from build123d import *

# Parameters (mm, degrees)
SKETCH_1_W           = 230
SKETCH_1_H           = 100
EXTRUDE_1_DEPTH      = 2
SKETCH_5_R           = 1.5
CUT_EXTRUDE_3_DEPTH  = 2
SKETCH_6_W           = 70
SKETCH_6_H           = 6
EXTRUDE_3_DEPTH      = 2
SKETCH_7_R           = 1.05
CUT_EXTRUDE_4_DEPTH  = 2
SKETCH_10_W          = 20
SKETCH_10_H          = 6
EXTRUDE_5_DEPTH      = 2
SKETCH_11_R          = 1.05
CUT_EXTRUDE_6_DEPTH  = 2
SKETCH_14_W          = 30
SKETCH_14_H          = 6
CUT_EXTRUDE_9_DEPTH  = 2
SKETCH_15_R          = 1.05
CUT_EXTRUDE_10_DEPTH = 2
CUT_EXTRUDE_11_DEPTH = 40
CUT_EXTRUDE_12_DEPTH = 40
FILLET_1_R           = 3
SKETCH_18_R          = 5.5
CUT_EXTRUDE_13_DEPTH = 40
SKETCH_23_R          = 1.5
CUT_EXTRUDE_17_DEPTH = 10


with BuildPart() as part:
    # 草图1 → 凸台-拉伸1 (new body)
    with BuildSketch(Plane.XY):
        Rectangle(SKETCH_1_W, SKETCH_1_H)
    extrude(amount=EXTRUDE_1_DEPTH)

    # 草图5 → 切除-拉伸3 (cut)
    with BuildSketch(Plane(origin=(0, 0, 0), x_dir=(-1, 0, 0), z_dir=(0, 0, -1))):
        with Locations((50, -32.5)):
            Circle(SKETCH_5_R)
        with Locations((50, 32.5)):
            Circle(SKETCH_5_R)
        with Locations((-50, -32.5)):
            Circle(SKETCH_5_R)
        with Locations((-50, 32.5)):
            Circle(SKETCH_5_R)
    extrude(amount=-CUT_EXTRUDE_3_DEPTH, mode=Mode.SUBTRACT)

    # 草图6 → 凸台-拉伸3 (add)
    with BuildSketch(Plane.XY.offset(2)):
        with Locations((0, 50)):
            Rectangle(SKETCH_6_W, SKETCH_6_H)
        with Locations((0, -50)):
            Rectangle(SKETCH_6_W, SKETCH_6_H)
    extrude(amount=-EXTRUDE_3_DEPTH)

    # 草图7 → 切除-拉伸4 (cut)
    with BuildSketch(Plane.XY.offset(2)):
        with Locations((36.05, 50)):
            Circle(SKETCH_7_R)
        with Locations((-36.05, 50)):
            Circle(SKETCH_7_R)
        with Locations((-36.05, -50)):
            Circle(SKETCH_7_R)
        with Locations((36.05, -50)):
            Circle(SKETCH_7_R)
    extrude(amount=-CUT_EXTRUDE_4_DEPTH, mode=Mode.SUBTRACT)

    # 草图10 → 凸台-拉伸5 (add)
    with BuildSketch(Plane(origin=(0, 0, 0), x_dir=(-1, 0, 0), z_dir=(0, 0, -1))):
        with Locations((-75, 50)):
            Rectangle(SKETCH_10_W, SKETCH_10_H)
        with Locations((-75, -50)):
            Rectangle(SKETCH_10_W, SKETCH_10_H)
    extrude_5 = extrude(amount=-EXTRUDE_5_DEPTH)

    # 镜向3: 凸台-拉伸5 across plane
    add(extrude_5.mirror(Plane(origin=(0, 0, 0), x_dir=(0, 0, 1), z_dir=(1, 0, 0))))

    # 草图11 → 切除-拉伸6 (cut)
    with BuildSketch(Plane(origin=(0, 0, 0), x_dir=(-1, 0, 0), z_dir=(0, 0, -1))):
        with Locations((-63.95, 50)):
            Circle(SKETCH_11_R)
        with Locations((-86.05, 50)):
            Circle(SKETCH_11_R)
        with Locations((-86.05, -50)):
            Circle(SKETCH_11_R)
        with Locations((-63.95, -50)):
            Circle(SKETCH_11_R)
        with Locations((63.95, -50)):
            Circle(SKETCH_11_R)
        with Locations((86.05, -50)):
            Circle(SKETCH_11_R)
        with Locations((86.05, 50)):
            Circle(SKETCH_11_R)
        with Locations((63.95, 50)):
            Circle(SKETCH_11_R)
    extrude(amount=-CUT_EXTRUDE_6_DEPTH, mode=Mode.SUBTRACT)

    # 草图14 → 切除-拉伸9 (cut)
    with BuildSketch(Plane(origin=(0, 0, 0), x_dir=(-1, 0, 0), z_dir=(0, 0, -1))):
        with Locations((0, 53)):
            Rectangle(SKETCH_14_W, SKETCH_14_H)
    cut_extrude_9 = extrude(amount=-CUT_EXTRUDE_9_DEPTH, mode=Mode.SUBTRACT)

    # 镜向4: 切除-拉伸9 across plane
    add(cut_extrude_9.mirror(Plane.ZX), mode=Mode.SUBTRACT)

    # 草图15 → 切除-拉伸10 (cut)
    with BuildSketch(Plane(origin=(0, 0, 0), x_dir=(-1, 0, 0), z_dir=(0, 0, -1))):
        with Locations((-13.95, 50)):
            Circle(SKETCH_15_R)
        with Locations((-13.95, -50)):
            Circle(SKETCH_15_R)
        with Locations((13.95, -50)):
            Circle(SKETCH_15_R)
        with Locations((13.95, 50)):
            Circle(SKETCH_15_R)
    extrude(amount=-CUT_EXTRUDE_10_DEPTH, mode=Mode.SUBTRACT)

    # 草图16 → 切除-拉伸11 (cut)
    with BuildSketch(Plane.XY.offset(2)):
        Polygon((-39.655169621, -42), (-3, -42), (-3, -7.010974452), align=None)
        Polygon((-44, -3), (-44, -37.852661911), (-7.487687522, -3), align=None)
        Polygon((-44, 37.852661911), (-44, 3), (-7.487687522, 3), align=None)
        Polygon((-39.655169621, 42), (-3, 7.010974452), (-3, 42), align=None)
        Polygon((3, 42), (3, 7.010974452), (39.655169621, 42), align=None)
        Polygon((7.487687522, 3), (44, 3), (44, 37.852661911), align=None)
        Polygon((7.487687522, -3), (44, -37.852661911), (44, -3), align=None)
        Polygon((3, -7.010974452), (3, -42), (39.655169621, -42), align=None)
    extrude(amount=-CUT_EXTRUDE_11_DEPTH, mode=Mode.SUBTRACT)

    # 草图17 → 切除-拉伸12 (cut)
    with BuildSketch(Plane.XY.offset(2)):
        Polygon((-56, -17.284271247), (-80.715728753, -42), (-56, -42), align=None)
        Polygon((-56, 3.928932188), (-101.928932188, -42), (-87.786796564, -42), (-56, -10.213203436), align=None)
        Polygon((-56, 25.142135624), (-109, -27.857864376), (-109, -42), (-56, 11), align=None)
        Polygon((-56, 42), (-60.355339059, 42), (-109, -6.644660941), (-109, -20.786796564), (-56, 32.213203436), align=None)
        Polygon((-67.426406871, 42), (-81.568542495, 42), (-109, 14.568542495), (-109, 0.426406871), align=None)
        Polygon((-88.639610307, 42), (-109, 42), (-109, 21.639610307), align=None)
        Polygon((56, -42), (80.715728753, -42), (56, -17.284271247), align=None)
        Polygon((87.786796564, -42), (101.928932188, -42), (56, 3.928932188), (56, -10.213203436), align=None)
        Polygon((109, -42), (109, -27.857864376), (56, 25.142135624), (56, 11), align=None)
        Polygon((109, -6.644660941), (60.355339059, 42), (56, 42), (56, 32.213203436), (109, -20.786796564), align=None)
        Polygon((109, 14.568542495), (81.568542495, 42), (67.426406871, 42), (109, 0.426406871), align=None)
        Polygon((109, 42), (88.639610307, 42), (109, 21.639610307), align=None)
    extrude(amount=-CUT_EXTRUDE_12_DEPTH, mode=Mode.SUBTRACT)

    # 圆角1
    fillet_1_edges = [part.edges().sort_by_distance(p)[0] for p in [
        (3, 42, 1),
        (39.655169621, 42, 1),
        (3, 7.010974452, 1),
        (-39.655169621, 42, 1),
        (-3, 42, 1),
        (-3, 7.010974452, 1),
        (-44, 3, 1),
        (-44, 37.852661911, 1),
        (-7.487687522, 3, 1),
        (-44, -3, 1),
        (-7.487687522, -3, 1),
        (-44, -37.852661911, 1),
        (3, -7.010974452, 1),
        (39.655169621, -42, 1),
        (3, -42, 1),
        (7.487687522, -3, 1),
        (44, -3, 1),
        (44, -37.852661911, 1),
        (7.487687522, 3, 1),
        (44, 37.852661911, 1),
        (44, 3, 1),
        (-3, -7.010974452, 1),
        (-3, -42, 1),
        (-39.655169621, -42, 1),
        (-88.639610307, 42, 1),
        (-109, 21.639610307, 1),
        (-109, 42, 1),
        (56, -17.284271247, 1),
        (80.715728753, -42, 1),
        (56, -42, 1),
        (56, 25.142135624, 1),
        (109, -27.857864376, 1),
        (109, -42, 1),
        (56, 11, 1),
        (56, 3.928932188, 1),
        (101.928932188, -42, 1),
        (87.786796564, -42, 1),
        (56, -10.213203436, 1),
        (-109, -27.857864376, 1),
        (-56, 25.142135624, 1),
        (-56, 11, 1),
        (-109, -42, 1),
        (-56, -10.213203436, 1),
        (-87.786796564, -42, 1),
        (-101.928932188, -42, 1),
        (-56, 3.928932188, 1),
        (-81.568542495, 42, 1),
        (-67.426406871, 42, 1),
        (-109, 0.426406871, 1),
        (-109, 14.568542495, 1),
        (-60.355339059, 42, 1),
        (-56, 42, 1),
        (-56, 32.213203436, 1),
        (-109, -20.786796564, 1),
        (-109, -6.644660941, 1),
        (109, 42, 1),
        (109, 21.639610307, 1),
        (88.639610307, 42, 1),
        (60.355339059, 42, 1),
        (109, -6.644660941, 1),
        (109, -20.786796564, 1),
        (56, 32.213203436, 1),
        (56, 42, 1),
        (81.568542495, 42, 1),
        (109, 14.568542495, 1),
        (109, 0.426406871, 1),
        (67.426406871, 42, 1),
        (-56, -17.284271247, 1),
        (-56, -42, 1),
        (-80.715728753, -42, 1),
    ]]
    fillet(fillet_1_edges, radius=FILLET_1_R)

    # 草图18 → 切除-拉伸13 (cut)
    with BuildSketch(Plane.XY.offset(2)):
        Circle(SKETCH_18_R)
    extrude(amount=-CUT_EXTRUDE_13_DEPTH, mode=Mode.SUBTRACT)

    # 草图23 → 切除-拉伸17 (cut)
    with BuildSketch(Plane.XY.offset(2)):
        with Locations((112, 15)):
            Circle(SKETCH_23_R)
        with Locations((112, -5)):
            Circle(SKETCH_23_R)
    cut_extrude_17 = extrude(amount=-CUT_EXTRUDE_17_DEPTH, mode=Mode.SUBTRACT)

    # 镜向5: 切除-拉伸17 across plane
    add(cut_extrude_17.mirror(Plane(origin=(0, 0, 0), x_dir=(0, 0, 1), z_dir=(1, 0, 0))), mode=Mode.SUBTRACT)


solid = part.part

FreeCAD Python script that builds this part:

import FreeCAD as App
import Part
import Sketcher

V = App.Vector


def edges_at(feature, points):
    """Names of the edges that pass closest to the given points."""
    edges = feature.Shape.Edges
    near = lambda p: min(range(len(edges)), key=lambda i: edges[i].distToShape(Part.Vertex(*p))[0])
    return sorted({f"Edge{near(p) + 1}" for p in points})


def add_polygon(sketch, points):
    """Adds a closed chain of lines whose ends are joined by coincident constraints."""
    first, n = sketch.GeometryCount, len(points)
    for a, b in zip(points, points[1:] + points[:1]):
        sketch.addGeometry(Part.LineSegment(App.Vector(*a, 0), App.Vector(*b, 0)), False)
    for i in range(n):
        sketch.addConstraint(Sketcher.Constraint("Coincident", first + i, 2, first + (i + 1) % n, 1))

doc = App.newDocument("Part")
body = doc.addObject("PartDesign::Body", "Body")

# Sketch on XY plane
sketch1 = body.newObject("Sketcher::SketchObject", "Sketch")
sketch1.AttachmentSupport = (doc.getObject("XY_Plane"), [""])
sketch1.MapMode = "FlatFace"
add_polygon(sketch1, [(-115, 50), (-115, -50), (115, -50), (115, 50)])  # lines 0-3
sketch1.addConstraint([
    Sketcher.Constraint("Vertical", 0),
    Sketcher.Constraint("Horizontal", 1),
    Sketcher.Constraint("Vertical", 2),
    Sketcher.Constraint("Horizontal", 3),
    Sketcher.Constraint("Symmetric", 0, 2, 2, 2, -1, 1),
    Sketcher.Constraint("DistanceX", 1, 1, 1, 2, 230.0),
    Sketcher.Constraint("DistanceY", 0, 2, 0, 1, 100.0),
])
pad1 = body.newObject("PartDesign::Pad", "Pad")
pad1.Profile = sketch1
pad1.Length = 2

# Sketch on XY plane
sketch2 = body.newObject("Sketcher::SketchObject", "Sketch001")
sketch2.AttachmentSupport = (doc.getObject("XY_Plane"), [""])
sketch2.MapMode = "FlatFace"
sketch2.addGeometry([
    Part.Circle(V(-50, -32.5, 0), V(0, 0, 1), 1.5),
    Part.Circle(V(-50, 32.5, 0), V(0, 0, 1), 1.5),
    Part.Circle(V(50, -32.5, 0), V(0, 0, 1), 1.5),
    Part.Circle(V(50, 32.5, 0), V(0, 0, 1), 1.5),
], False)
sketch2.addConstraint([
    Sketcher.Constraint("Equal", 0, 1),
    Sketcher.Constraint("Equal", 1, 2),
    Sketcher.Constraint("Equal", 2, 3),
    Sketcher.Constraint("Symmetric", 1, 3, 2, 3, -1, 1),
    Sketcher.Constraint("Symmetric", 0, 3, 3, 3, -1, 1),
    Sketcher.Constraint("Symmetric", 0, 3, 2, 3, -2),
    Sketcher.Constraint("Diameter", 0, 3.0),
    Sketcher.Constraint("DistanceX", 0, 3, -1, 1, 50.0),
    Sketcher.Constraint("DistanceY", 0, 3, 1, 3, 65.0),
])
pocket1 = body.newObject("PartDesign::Pocket", "Pocket")
pocket1.Profile = sketch2
pocket1.Length = 2
pocket1.Reversed = True

# Sketch on XY plane
sketch3 = body.newObject("Sketcher::SketchObject", "Sketch002")
sketch3.AttachmentSupport = (doc.getObject("XY_Plane"), [""])
sketch3.MapMode = "FlatFace"
sketch3.AttachmentOffset = App.Placement(V(0, 0, 2), App.Rotation())
add_polygon(sketch3, [(-35, 53), (-35, 47), (35, 47), (35, 53)])  # lines 0-3
add_polygon(sketch3, [(-35, -47), (-35, -53), (35, -53), (35, -47)])  # lines 4-7
sketch3.addConstraint([
    Sketcher.Constraint("Vertical", 0),
    Sketcher.Constraint("Horizontal", 1),
    Sketcher.Constraint("Vertical", 2),
    Sketcher.Constraint("Horizontal", 3),
    Sketcher.Constraint("Vertical", 4),
    Sketcher.Constraint("Horizontal", 5),
    Sketcher.Constraint("Vertical", 6),
    Sketcher.Constraint("Horizontal", 7),
    Sketcher.Constraint("Symmetric", 2, 2, 4, 2, -1, 1),
    Sketcher.Constraint("Symmetric", 0, 2, 6, 2, -1, 1),
    Sketcher.Constraint("Vertical", 3, 2, 4, 2),
    Sketcher.Constraint("DistanceX", 1, 1, 1, 2, 70.0),
    Sketcher.Constraint("DistanceY", 0, 2, 0, 1, 6.0),
    Sketcher.Constraint("DistanceY", -1, 1, 0, 2, 47.0),
])
pad2 = body.newObject("PartDesign::Pad", "Pad001")
pad2.Profile = sketch3
pad2.Length = 2
pad2.Reversed = True

# Sketch on XY plane
sketch4 = body.newObject("Sketcher::SketchObject", "Sketch003")
sketch4.AttachmentSupport = (doc.getObject("XY_Plane"), [""])
sketch4.MapMode = "FlatFace"
sketch4.AttachmentOffset = App.Placement(V(0, 0, 2), App.Rotation())
sketch4.addGeometry([
    Part.Circle(V(36, 50, 0), V(0, 0, 1), 1.1),
    Part.Circle(V(-36, 50, 0), V(0, 0, 1), 1.1),
    Part.Circle(V(-36, -50, 0), V(0, 0, 1), 1.1),
    Part.Circle(V(36, -50, 0), V(0, 0, 1), 1.1),
], False)
sketch4.addConstraint([
    Sketcher.Constraint("Equal", 0, 1),
    Sketcher.Constraint("Equal", 1, 2),
    Sketcher.Constraint("Equal", 2, 3),
    Sketcher.Constraint("Symmetric", 0, 3, 2, 3, -1, 1),
    Sketcher.Constraint("Symmetric", 1, 3, 3, 3, -1, 1),
    Sketcher.Constraint("Symmetric", 0, 3, 1, 3, -2),
    Sketcher.Constraint("Diameter", 0, 2.1),
    Sketcher.Constraint("DistanceY", -1, 1, 0, 3, 50.0),
    Sketcher.Constraint("DistanceX", 1, 3, 0, 3, 72.1),
])
pocket2 = body.newObject("PartDesign::Pocket", "Pocket001")
pocket2.Profile = sketch4
pocket2.Length = 2

# Sketch on XY plane
sketch5 = body.newObject("Sketcher::SketchObject", "Sketch004")
sketch5.AttachmentSupport = (doc.getObject("XY_Plane"), [""])
sketch5.MapMode = "FlatFace"
add_polygon(sketch5, [(85, 53), (85, 47), (65, 47), (65, 53)])  # lines 0-3
add_polygon(sketch5, [(85, -47), (85, -53), (65, -53), (65, -47)])  # lines 4-7
sketch5.addConstraint([
    Sketcher.Constraint("Vertical", 0),
    Sketcher.Constraint("Horizontal", 1),
    Sketcher.Constraint("Vertical", 2),
    Sketcher.Constraint("Horizontal", 3),
    Sketcher.Constraint("Vertical", 4),
    Sketcher.Constraint("Horizontal", 5),
    Sketcher.Constraint("Vertical", 6),
    Sketcher.Constraint("Horizontal", 7),
    Sketcher.Constraint("Symmetric", 3, 2, 4, 2, -1),
    Sketcher.Constraint("Symmetric", 1, 2, 6, 2, -1),
    Sketcher.Constraint("DistanceX", 1, 2, 1, 1, 20.0),
    Sketcher.Constraint("DistanceY", 0, 2, 0, 1, 6.0),
    Sketcher.Constraint("DistanceX", -1, 1, 0, 2, 85.0),
    Sketcher.Constraint("DistanceY", -1, 1, 0, 2, 47.0),
])
pad3 = body.newObject("PartDesign::Pad", "Pad002")
pad3.Profile = sketch5
pad3.Length = 2
doc.recompute()

mirrored = body.newObject("PartDesign::Mirrored", "Mirrored")
mirrored.Originals = [pad3]
mirrored.MirrorPlane = (doc.getObject("YZ_Plane"), [""])
body.Tip = mirrored

# Sketch on XY plane
sketch6 = body.newObject("Sketcher::SketchObject", "Sketch005")
sketch6.AttachmentSupport = (doc.getObject("XY_Plane"), [""])
sketch6.MapMode = "FlatFace"
sketch6.addGeometry([
    Part.Circle(V(64, 50, 0), V(0, 0, 1), 1.1),  # 0
    Part.Circle(V(86, 50, 0), V(0, 0, 1), 1.1),  # 1
    Part.Circle(V(86, -50, 0), V(0, 0, 1), 1.1),  # 2
    Part.Circle(V(64, -50, 0), V(0, 0, 1), 1.1),  # 3
    Part.Circle(V(-64, -50, 0), V(0, 0, 1), 1.1),  # 4
    Part.Circle(V(-86, -50, 0), V(0, 0, 1), 1.1),  # 5
    Part.Circle(V(-86, 50, 0), V(0, 0, 1), 1.1),  # 6
    Part.Circle(V(-64, 50, 0), V(0, 0, 1), 1.1),  # 7
], False)
sketch6.addConstraint([
    Sketcher.Constraint("Equal", 0, 1),
    Sketcher.Constraint("Equal", 1, 2),
    Sketcher.Constraint("Equal", 2, 3),
    Sketcher.Constraint("Equal", 3, 4),
    Sketcher.Constraint("Equal", 4, 5),
    Sketcher.Constraint("Equal", 5, 6),
    Sketcher.Constraint("Equal", 6, 7),
    Sketcher.Constraint("Symmetric", 0, 3, 4, 3, -1, 1),
    Sketcher.Constraint("Symmetric", 1, 3, 5, 3, -1, 1),
    Sketcher.Constraint("Symmetric", 2, 3, 6, 3, -1, 1),
    Sketcher.Constraint("Symmetric", 3, 3, 7, 3, -1, 1),
    Sketcher.Constraint("Symmetric", 3, 3, 4, 3, -2),
    Sketcher.Constraint("Symmetric", 2, 3, 5, 3, -2),
    Sketcher.Constraint("Horizontal", 0, 3, 1, 3),
    Sketcher.Constraint("Diameter", 0, 2.1),
    Sketcher.Constraint("DistanceY", -1, 1, 0, 3, 50.0),
    Sketcher.Constraint("DistanceX", 4, 3, 2, 3, 150.0),
    Sketcher.Constraint("DistanceX", 0, 3, 1, 3, 22.1),
])
pocket3 = body.newObject("PartDesign::Pocket", "Pocket002")
pocket3.Profile = sketch6
pocket3.Length = 2
pocket3.Reversed = True

# Sketch on XY plane
sketch7 = body.newObject("Sketcher::SketchObject", "Sketch006")
sketch7.AttachmentSupport = (doc.getObject("XY_Plane"), [""])
sketch7.MapMode = "FlatFace"
add_polygon(sketch7, [(15, 56), (15, 50), (-15, 50), (-15, 56)])  # lines 0-3
sketch7.addConstraint([
    Sketcher.Constraint("Vertical", 0),
    Sketcher.Constraint("Horizontal", 1),
    Sketcher.Constraint("Vertical", 2),
    Sketcher.Constraint("Horizontal", 3),
    Sketcher.Constraint("DistanceX", 1, 2, 1, 1, 30.0),
    Sketcher.Constraint("DistanceY", 0, 2, 0, 1, 6.0),
    Sketcher.Constraint("DistanceX", -1, 1, 0, 2, 15.0),
    Sketcher.Constraint("DistanceY", -1, 1, 0, 2, 50.0),
])
pocket4 = body.newObject("PartDesign::Pocket", "Pocket003")
pocket4.Profile = sketch7
pocket4.Length = 2
pocket4.Reversed = True
doc.recompute()

mirrored2 = body.newObject("PartDesign::Mirrored", "Mirrored001")
mirrored2.Originals = [pocket4]
mirrored2.MirrorPlane = (doc.getObject("XZ_Plane"), [""])
body.Tip = mirrored2

# Sketch on XY plane
sketch8 = body.newObject("Sketcher::SketchObject", "Sketch007")
sketch8.AttachmentSupport = (doc.getObject("XY_Plane"), [""])
sketch8.MapMode = "FlatFace"
sketch8.addGeometry([
    Part.Circle(V(13.9, 50, 0), V(0, 0, 1), 1.1),
    Part.Circle(V(13.9, -50, 0), V(0, 0, 1), 1.1),
    Part.Circle(V(-13.9, -50, 0), V(0, 0, 1), 1.1),
    Part.Circle(V(-13.9, 50, 0), V(0, 0, 1), 1.1),
], False)
sketch8.addConstraint([
    Sketcher.Constraint("Equal", 0, 1),
    Sketcher.Constraint("Equal", 1, 2),
    Sketcher.Constraint("Equal", 2, 3),
    Sketcher.Constraint("Symmetric", 0, 3, 2, 3, -1, 1),
    Sketcher.Constraint("Symmetric", 1, 3, 3, 3, -1, 1),
    Sketcher.Constraint("Symmetric", 1, 3, 2, 3, -2),
    Sketcher.Constraint("Diameter", 0, 2.1),
    Sketcher.Constraint("DistanceY", -1, 1, 0, 3, 50.0),
    Sketcher.Constraint("DistanceX", 2, 3, 1, 3, 27.9),
])
pocket5 = body.newObject("PartDesign::Pocket", "Pocket004")
pocket5.Profile = sketch8
pocket5.Length = 2
pocket5.Reversed = True

# Sketch on XY plane
sketch9 = body.newObject("Sketcher::SketchObject", "Sketch008")
sketch9.AttachmentSupport = (doc.getObject("XY_Plane"), [""])
sketch9.MapMode = "FlatFace"
sketch9.AttachmentOffset = App.Placement(V(0, 0, 2), App.Rotation())
add_polygon(sketch9, [(-40, -42), (-3, -42), (-3, -7)])  # lines 0-2
add_polygon(sketch9, [(-44, -3), (-44, -38), (-7, -3)])  # lines 3-5
add_polygon(sketch9, [(-44, 38), (-44, 3), (-7, 3)])  # lines 6-8
add_polygon(sketch9, [(-40, 42), (-3, 7), (-3, 42)])  # lines 9-11
add_polygon(sketch9, [(3, 42), (3, 7), (40, 42)])  # lines 12-14
add_polygon(sketch9, [(7, 3), (44, 3), (44, 38)])  # lines 15-17
add_polygon(sketch9, [(7, -3), (44, -38), (44, -3)])  # lines 18-20
add_polygon(sketch9, [(3, -7), (3, -42), (40, -42)])  # lines 21-23
sketch9.addConstraint([
    Sketcher.Constraint("Horizontal", 0),
    Sketcher.Constraint("Vertical", 1),
    Sketcher.Constraint("Vertical", 3),
    Sketcher.Constraint("Horizontal", 5),
    Sketcher.Constraint("Vertical", 6),
    Sketcher.Constraint("Horizontal", 7),
    Sketcher.Constraint("Vertical", 10),
    Sketcher.Constraint("Horizontal", 11),
    Sketcher.Constraint("Vertical", 12),
    Sketcher.Constraint("Horizontal", 14),
    Sketcher.Constraint("Horizontal", 15),
    Sketcher.Constraint("Vertical", 16),
    Sketcher.Constraint("Vertical", 19),
    Sketcher.Constraint("Horizontal", 20),
    Sketcher.Constraint("Vertical", 21),
    Sketcher.Constraint("Horizontal", 22),
    Sketcher.Constraint("Symmetric", 1, 2, 12, 2, -1, 1),
    Sketcher.Constraint("Symmetric", 2, 2, 13, 2, -1, 1),
    Sketcher.Constraint("Symmetric", 5, 2, 15, 2, -1, 1),
    Sketcher.Constraint("Symmetric", 8, 2, 18, 2, -1, 1),
    Sketcher.Constraint("Symmetric", 7, 2, 20, 2, -1, 1),
    Sketcher.Constraint("Symmetric", 10, 2, 21, 2, -1, 1),
    Sketcher.Constraint("Symmetric", 9, 2, 12, 2, -2),
    Sketcher.Constraint("Symmetric", 11, 2, 13, 2, -2),
    Sketcher.Constraint("Symmetric", 6, 2, 15, 2, -2),
    Sketcher.Constraint("Parallel", 2, 4),
    Sketcher.Constraint("Parallel", 8, 9),
    Sketcher.Constraint("Parallel", 13, 17),
    Sketcher.Constraint("Parallel", 18, 23),
    Sketcher.Constraint("Horizontal", 8, 2, 16, 2),
    Sketcher.Constraint("Horizontal", 3, 2, 18, 2),
    Sketcher.Constraint("Horizontal", 1, 2, 23, 2),
    Sketcher.Constraint("DistanceX", 0, 2, -1, 1, 3.0),
    Sketcher.Constraint("DistanceY", 0, 2, -1, 1, 42.0),
    Sketcher.Constraint("DistanceX", 3, 2, -1, 1, 44.0),
    Sketcher.Constraint("DistanceY", 4, 2, -1, 1, 3.0),
    Sketcher.Constraint("Distance", 4, 50.476301),
    Sketcher.Constraint("DistanceX", 0, 1, 0, 2, 36.65517),
    Sketcher.Constraint("DistanceY", 3, 2, 3, 1, 34.852662),
])
pocket6 = body.newObject("PartDesign::Pocket", "Pocket005")
pocket6.Profile = sketch9
pocket6.Length = 40

# Sketch on XY plane
sketch10 = body.newObject("Sketcher::SketchObject", "Sketch009")
sketch10.AttachmentSupport = (doc.getObject("XY_Plane"), [""])
sketch10.MapMode = "FlatFace"
sketch10.AttachmentOffset = App.Placement(V(0, 0, 2), App.Rotation())
add_polygon(sketch10, [(-56, -17.3), (-80.7, -42), (-56, -42)])  # lines 0-2
add_polygon(sketch10, [(-56, 3.9), (-101.9, -42), (-87.8, -42), (-56, -10.2)])  # lines 3-6
add_polygon(sketch10, [(-56, 25.1), (-109, -27.9), (-109, -42), (-56, 11)])  # lines 7-10
add_polygon(sketch10, [(-56, 42), (-60.4, 42), (-109, -6.6), (-109, -20.8), (-56, 32.2)])  # lines 11-15
add_polygon(sketch10, [(-67.4, 42), (-81.6, 42), (-109, 14.6), (-109, 0.4)])  # lines 16-19
add_polygon(sketch10, [(-88.6, 42), (-109, 42), (-109, 21.6)])  # lines 20-22
add_polygon(sketch10, [(56, -42), (80.7, -42), (56, -17.3)])  # lines 23-25
add_polygon(sketch10, [(87.8, -42), (101.9, -42), (56, 3.9), (56, -10.2)])  # lines 26-29
add_polygon(sketch10, [(109, -42), (109, -27.9), (56, 25.1), (56, 11)])  # lines 30-33
add_polygon(sketch10, [(109, -6.6), (60.4, 42), (56, 42), (56, 32.2), (109, -20.8)])  # lines 34-38
add_polygon(sketch10, [(109, 14.6), (81.6, 42), (67.4, 42), (109, 0.4)])  # lines 39-42
add_polygon(sketch10, [(109, 42), (88.6, 42), (109, 21.6)])  # lines 43-45
sketch10.addConstraint([
    Sketcher.Constraint("Horizontal", 1),
    Sketcher.Constraint("Vertical", 2),
    Sketcher.Constraint("Horizontal", 4),
    Sketcher.Constraint("Vertical", 6),
    Sketcher.Constraint("Vertical", 8),
    Sketcher.Constraint("Vertical", 10),
    Sketcher.Constraint("Horizontal", 11),
    Sketcher.Constraint("Vertical", 13),
    Sketcher.Constraint("Vertical", 15),
    Sketcher.Constraint("Horizontal", 16),
    Sketcher.Constraint("Vertical", 18),
    Sketcher.Constraint("Horizontal", 20),
    Sketcher.Constraint("Vertical", 21),
    Sketcher.Constraint("Horizontal", 23),
    Sketcher.Constraint("Vertical", 25),
    Sketcher.Constraint("Horizontal", 26),
    Sketcher.Constraint("Vertical", 28),
    Sketcher.Constraint("Vertical", 30),
    Sketcher.Constraint("Vertical", 32),
    Sketcher.Constraint("Horizontal", 35),
    Sketcher.Constraint("Vertical", 36),
    Sketcher.Constraint("Vertical", 38),
    Sketcher.Constraint("Horizontal", 40),
    Sketcher.Constraint("Vertical", 42),
    Sketcher.Constraint("Horizontal", 43),
    Sketcher.Constraint("Vertical", 45),
    Sketcher.Constraint("Symmetric", 15, 2, 25, 2, -1, 1),
    Sketcher.Constraint("Symmetric", 20, 2, 33, 2, -1, 1),
    Sketcher.Constraint("Symmetric", 1, 2, 35, 2, -1, 1),
    Sketcher.Constraint("Symmetric", 8, 2, 45, 2, -1, 1),
    Sketcher.Constraint("Symmetric", 0, 2, 23, 2, -2),
    Sketcher.Constraint("Symmetric", 2, 2, 24, 2, -2),
    Sketcher.Constraint("Symmetric", 3, 2, 26, 2, -2),
    Sketcher.Constraint("Symmetric", 6, 2, 27, 2, -2),
    Sketcher.Constraint("Symmetric", 7, 2, 30, 2, -2),
    Sketcher.Constraint("Symmetric", 10, 2, 31, 2, -2),
    Sketcher.Constraint("Symmetric", 13, 2, 37, 2, -2),
    Sketcher.Constraint("Symmetric", 16, 2, 39, 2, -2),
    Sketcher.Constraint("Symmetric", 18, 2, 41, 2, -2),
    Sketcher.Constraint("Symmetric", 22, 2, 43, 2, -2),
    Sketcher.Constraint("Parallel", 0, 3),
    Sketcher.Constraint("Parallel", 3, 5),
    Sketcher.Constraint("Parallel", 5, 7),
    Sketcher.Constraint("Parallel", 7, 9),
    Sketcher.Constraint("Parallel", 9, 12),
    Sketcher.Constraint("Parallel", 12, 14),
    Sketcher.Constraint("Parallel", 14, 17),
    Sketcher.Constraint("Parallel", 17, 19),
    Sketcher.Constraint("Parallel", 19, 22),
    Sketcher.Constraint("Perpendicular", 22, 24),
    Sketcher.Constraint("Parallel", 27, 29),
    Sketcher.Constraint("Parallel", 31, 33),
    Sketcher.Constraint("Parallel", 33, 34),
    Sketcher.Constraint("Parallel", 34, 37),
    Sketcher.Constraint("Parallel", 37, 39),
    Sketcher.Constraint("Parallel", 39, 41),
    Sketcher.Constraint("Parallel", 41, 44),
    Sketcher.Constraint("Horizontal", 1, 2, 3, 2),
    Sketcher.Constraint("Horizontal", 4, 2, 8, 2),
    Sketcher.Constraint("Horizontal", 15, 2, 16, 2),
    Sketcher.Constraint("Horizontal", 5, 2, 28, 2),
    Sketcher.Constraint("Horizontal", 12, 2, 38, 2),
    Sketcher.Constraint("Vertical", 2, 2, 5, 2),
    Sketcher.Constraint("Vertical", 6, 2, 9, 2),
    Sketcher.Constraint("Vertical", 8, 2, 12, 2),
    Sketcher.Constraint("Vertical", 13, 2, 17, 2),
    Sketcher.Constraint("Equal", 4, 16),
    Sketcher.Constraint("Equal", 6, 8),
    Sketcher.Constraint("Equal", 10, 13),
    Sketcher.Constraint("DistanceY", 0, 2, -1, 1, 42.0),
    Sketcher.Constraint("DistanceX", 1, 2, -1, 1, 56.0),
    Sketcher.Constraint("DistanceX", 7, 2, -1, 1, 109.0),
    Sketcher.Constraint("DistanceX", 1, 1, 1, 2, 24.715729),
    Sketcher.Constraint("DistanceX", 11, 2, 11, 1, 4.355339),
    Sketcher.Constraint("DistanceX", 20, 2, 20, 1, 20.36039),
    Sketcher.Constraint("Distance", 3, 64.953319),
    Sketcher.Constraint("Distance", 5, 44.953319),
    Sketcher.Constraint("Distance", 17, 38.793939),
])
pocket7 = body.newObject("PartDesign::Pocket", "Pocket006")
pocket7.Profile = sketch10
pocket7.Length = 40
doc.recompute()

fillet = body.newObject("PartDesign::Fillet", "Fillet")
fillet.Base = (pocket7, edges_at(pocket7, [
    (3, 42, 1),
    (39.655, 42, 1),
    (3, 7.011, 1),
    (-39.655, 42, 1),
    (-3, 42, 1),
    (-3, 7.011, 1),
    (-44, 3, 1),
    (-44, 37.853, 1),
    (-7.488, 3, 1),
    (-44, -3, 1),
    (-7.488, -3, 1),
    (-44, -37.853, 1),
    (3, -7.011, 1),
    (39.655, -42, 1),
    (3, -42, 1),
    (7.488, -3, 1),
    (44, -3, 1),
    (44, -37.853, 1),
    (7.488, 3, 1),
    (44, 37.853, 1),
    (44, 3, 1),
    (-3, -7.011, 1),
    (-3, -42, 1),
    (-39.655, -42, 1),
    (-88.64, 42, 1),
    (-109, 21.64, 1),
    (-109, 42, 1),
    (56, -17.284, 1),
    (80.716, -42, 1),
    (56, -42, 1),
    (56, 25.142, 1),
    (109, -27.858, 1),
    (109, -42, 1),
    (56, 11, 1),
    (56, 3.929, 1),
    (101.929, -42, 1),
    (87.787, -42, 1),
    (56, -10.213, 1),
    (-109, -27.858, 1),
    (-56, 25.142, 1),
    (-56, 11, 1),
    (-109, -42, 1),
    (-56, -10.213, 1),
    (-87.787, -42, 1),
    (-101.929, -42, 1),
    (-56, 3.929, 1),
    (-81.569, 42, 1),
    (-67.426, 42, 1),
    (-109, 0.426, 1),
    (-109, 14.569, 1),
    (-60.355, 42, 1),
    (-56, 42, 1),
    (-56, 32.213, 1),
    (-109, -20.787, 1),
    (-109, -6.645, 1),
    (109, 42, 1),
    (109, 21.64, 1),
    (88.64, 42, 1),
    (60.355, 42, 1),
    (109, -6.645, 1),
    (109, -20.787, 1),
    (56, 32.213, 1),
    (56, 42, 1),
    (81.569, 42, 1),
    (109, 14.569, 1),
    (109, 0.426, 1),
    (67.426, 42, 1),
    (-56, -17.284, 1),
    (-56, -42, 1),
    (-80.716, -42, 1),
]))
fillet.Radius = 3

# Sketch on XY plane
sketch11 = body.newObject("Sketcher::SketchObject", "Sketch010")
sketch11.AttachmentSupport = (doc.getObject("XY_Plane"), [""])
sketch11.MapMode = "FlatFace"
sketch11.AttachmentOffset = App.Placement(V(0, 0, 2), App.Rotation())
sketch11.addGeometry(Part.Circle(V(0, 0, 0), V(0, 0, 1), 6), False)
sketch11.addConstraint([
    Sketcher.Constraint("Coincident", 0, 3, -1, 1),
    Sketcher.Constraint("Diameter", 0, 11.0),
])
pocket8 = body.newObject("PartDesign::Pocket", "Pocket007")
pocket8.Profile = sketch11
pocket8.Length = 40

# Sketch on XY plane
sketch12 = body.newObject("Sketcher::SketchObject", "Sketch011")
sketch12.AttachmentSupport = (doc.getObject("XY_Plane"), [""])
sketch12.MapMode = "FlatFace"
sketch12.AttachmentOffset = App.Placement(V(0, 0, 2), App.Rotation())
sketch12.addGeometry([
    Part.Circle(V(112, 15, 0), V(0, 0, 1), 1.5),
    Part.Circle(V(112, -5, 0), V(0, 0, 1), 1.5),
], False)
sketch12.addConstraint([
    Sketcher.Constraint("Equal", 0, 1),
    Sketcher.Constraint("Vertical", 0, 3, 1, 3),
    Sketcher.Constraint("Diameter", 0, 3.0),
    Sketcher.Constraint("DistanceX", -1, 1, 0, 3, 112.0),
    Sketcher.Constraint("DistanceY", -1, 1, 0, 3, 15.0),
    Sketcher.Constraint("DistanceY", 1, 3, -1, 1, 5.0),
])
pocket9 = body.newObject("PartDesign::Pocket", "Pocket008")
pocket9.Profile = sketch12
pocket9.Length = 10
doc.recompute()

mirrored3 = body.newObject("PartDesign::Mirrored", "Mirrored002")
mirrored3.Originals = [pocket9]
mirrored3.MirrorPlane = (doc.getObject("YZ_Plane"), [""])
body.Tip = mirrored3

doc.recompute()
